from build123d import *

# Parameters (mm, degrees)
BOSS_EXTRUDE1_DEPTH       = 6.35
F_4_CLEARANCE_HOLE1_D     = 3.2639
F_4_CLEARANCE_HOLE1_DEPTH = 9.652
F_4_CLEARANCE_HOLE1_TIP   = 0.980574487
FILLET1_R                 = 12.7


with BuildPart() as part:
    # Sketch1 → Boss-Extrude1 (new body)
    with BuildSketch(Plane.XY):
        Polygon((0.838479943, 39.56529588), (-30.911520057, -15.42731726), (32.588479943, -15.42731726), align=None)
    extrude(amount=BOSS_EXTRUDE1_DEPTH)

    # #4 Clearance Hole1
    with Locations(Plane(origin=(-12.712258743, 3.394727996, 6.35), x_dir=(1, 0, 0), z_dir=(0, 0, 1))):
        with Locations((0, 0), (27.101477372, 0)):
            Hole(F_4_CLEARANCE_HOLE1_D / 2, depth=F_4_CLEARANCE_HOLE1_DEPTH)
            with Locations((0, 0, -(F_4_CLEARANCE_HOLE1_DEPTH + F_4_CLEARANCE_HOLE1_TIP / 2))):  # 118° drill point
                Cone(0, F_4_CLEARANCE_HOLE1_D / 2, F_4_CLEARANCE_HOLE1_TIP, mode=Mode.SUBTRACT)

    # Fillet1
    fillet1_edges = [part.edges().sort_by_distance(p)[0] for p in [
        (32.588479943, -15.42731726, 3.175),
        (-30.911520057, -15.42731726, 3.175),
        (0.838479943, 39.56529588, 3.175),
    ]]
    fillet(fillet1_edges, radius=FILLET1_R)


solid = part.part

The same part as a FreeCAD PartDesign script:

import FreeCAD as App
import Part
import Sketcher
from FreeCAD import Vector
Q = App.Units.Quantity


def edges_at(feature, points):
    """Names of the edges that pass closest to the given points."""
    edges = feature.Shape.Edges
    near = lambda p: min(range(len(edges)), key=lambda i: edges[i].distToShape(Part.Vertex(*p))[0])
    return sorted({f"Edge{near(p) + 1}" for p in points})

doc = App.newDocument("Part")
body = doc.addObject("PartDesign::Body", "Body")

# Sketch on XY plane
sketch1 = doc.addObject("Sketcher::SketchObject", "Sketch")
body.addObject(sketch1)
sketch1.AttachmentSupport = (doc.XY_Plane, [""])
sketch1.MapMode = "FlatFace"
sketch1.addGeometry(Part.LineSegment(Vector(0.83848, 39.565296, 0), Vector(-30.91152, -15.427317, 0)), False)
sketch1.addGeometry(Part.LineSegment(Vector(-30.91152, -15.427317, 0), Vector(32.58848, -15.427317, 0)), False)
sketch1.addGeometry(Part.LineSegment(Vector(32.58848, -15.427317, 0), Vector(0.83848, 39.565296, 0)), False)
sketch1.addConstraint(Sketcher.Constraint("Coincident", 0, 2, 1, 1))
sketch1.addConstraint(Sketcher.Constraint("Coincident", 1, 2, 2, 1))
sketch1.addConstraint(Sketcher.Constraint("Coincident", 2, 2, 0, 1))
sketch1.addConstraint(Sketcher.Constraint("Horizontal", 1))
sketch1.addConstraint(Sketcher.Constraint("Equal", 0, 2))
sketch1.addConstraint(Sketcher.Constraint("DistanceX", 1, 1, 1, 2, Q("2.5 in")))
sketch1.addConstraint(Sketcher.Constraint("Angle", 0, Q("-120 deg")))
sketch1.addConstraint(Sketcher.Constraint("DistanceX", 0, 2, -1, 1, 30.91152))
sketch1.addConstraint(Sketcher.Constraint("DistanceY", 0, 2, -1, 1, 15.427317))
pad1 = doc.addObject("PartDesign::Pad", "Pad")
body.addObject(pad1)
pad1.Profile = sketch1
pad1.Length = Q("0.25 in")

# Sketch on XY plane
sketch2 = doc.addObject("Sketcher::SketchObject", "Sketch001")
body.addObject(sketch2)
sketch2.AttachmentSupport = (doc.XY_Plane, [""])
sketch2.MapMode = "FlatFace"
sketch2.AttachmentOffset = App.Placement(Vector(0, 0, 0.25 * 25.4), App.Rotation())
sketch2.addGeometry(Part.Circle(Vector(-12.712259, 3.394728, 0), Vector(0, 0, 1), 1.63195), False)
sketch2.addGeometry(Part.Circle(Vector(14.389219, 3.394728, 0), Vector(0, 0, 1), 1.63195), False)
sketch2.addConstraint(Sketcher.Constraint("Equal", 0, 1))
sketch2.addConstraint(Sketcher.Constraint("Horizontal", 0, 3, 1, 3))
sketch2.addConstraint(Sketcher.Constraint("Diameter", 0, Q("0.1285 in")))
sketch2.addConstraint(Sketcher.Constraint("DistanceX", 0, 3, -1, 1, 12.712259))
sketch2.addConstraint(Sketcher.Constraint("DistanceX", -1, 1, 1, 3, 14.389219))
sketch2.addConstraint(Sketcher.Constraint("DistanceY", -1, 1, 0, 3, 3.394728))
doc.recompute()
hole = doc.addObject("PartDesign::Hole", "Hole")
body.addObject(hole)
hole.Profile = sketch2
hole.ThreadType = "None"
hole.Diameter = Q("0.1285 in")
hole.DepthType = "Dimension"
hole.Depth = Q("0.38 in")
hole.DrillPoint = "Angled"
hole.DrillPointAngle = 118
doc.recompute()

fillet = doc.addObject("PartDesign::Fillet", "Fillet")
body.addObject(fillet)
fillet.Base = (hole, edges_at(hole, [(32.588, -15.427, 3.175), (-30.912, -15.427, 3.175), (0.838, 39.565, 3.175)]))
fillet.Radius = Q("0.5 in")

doc.recompute()
